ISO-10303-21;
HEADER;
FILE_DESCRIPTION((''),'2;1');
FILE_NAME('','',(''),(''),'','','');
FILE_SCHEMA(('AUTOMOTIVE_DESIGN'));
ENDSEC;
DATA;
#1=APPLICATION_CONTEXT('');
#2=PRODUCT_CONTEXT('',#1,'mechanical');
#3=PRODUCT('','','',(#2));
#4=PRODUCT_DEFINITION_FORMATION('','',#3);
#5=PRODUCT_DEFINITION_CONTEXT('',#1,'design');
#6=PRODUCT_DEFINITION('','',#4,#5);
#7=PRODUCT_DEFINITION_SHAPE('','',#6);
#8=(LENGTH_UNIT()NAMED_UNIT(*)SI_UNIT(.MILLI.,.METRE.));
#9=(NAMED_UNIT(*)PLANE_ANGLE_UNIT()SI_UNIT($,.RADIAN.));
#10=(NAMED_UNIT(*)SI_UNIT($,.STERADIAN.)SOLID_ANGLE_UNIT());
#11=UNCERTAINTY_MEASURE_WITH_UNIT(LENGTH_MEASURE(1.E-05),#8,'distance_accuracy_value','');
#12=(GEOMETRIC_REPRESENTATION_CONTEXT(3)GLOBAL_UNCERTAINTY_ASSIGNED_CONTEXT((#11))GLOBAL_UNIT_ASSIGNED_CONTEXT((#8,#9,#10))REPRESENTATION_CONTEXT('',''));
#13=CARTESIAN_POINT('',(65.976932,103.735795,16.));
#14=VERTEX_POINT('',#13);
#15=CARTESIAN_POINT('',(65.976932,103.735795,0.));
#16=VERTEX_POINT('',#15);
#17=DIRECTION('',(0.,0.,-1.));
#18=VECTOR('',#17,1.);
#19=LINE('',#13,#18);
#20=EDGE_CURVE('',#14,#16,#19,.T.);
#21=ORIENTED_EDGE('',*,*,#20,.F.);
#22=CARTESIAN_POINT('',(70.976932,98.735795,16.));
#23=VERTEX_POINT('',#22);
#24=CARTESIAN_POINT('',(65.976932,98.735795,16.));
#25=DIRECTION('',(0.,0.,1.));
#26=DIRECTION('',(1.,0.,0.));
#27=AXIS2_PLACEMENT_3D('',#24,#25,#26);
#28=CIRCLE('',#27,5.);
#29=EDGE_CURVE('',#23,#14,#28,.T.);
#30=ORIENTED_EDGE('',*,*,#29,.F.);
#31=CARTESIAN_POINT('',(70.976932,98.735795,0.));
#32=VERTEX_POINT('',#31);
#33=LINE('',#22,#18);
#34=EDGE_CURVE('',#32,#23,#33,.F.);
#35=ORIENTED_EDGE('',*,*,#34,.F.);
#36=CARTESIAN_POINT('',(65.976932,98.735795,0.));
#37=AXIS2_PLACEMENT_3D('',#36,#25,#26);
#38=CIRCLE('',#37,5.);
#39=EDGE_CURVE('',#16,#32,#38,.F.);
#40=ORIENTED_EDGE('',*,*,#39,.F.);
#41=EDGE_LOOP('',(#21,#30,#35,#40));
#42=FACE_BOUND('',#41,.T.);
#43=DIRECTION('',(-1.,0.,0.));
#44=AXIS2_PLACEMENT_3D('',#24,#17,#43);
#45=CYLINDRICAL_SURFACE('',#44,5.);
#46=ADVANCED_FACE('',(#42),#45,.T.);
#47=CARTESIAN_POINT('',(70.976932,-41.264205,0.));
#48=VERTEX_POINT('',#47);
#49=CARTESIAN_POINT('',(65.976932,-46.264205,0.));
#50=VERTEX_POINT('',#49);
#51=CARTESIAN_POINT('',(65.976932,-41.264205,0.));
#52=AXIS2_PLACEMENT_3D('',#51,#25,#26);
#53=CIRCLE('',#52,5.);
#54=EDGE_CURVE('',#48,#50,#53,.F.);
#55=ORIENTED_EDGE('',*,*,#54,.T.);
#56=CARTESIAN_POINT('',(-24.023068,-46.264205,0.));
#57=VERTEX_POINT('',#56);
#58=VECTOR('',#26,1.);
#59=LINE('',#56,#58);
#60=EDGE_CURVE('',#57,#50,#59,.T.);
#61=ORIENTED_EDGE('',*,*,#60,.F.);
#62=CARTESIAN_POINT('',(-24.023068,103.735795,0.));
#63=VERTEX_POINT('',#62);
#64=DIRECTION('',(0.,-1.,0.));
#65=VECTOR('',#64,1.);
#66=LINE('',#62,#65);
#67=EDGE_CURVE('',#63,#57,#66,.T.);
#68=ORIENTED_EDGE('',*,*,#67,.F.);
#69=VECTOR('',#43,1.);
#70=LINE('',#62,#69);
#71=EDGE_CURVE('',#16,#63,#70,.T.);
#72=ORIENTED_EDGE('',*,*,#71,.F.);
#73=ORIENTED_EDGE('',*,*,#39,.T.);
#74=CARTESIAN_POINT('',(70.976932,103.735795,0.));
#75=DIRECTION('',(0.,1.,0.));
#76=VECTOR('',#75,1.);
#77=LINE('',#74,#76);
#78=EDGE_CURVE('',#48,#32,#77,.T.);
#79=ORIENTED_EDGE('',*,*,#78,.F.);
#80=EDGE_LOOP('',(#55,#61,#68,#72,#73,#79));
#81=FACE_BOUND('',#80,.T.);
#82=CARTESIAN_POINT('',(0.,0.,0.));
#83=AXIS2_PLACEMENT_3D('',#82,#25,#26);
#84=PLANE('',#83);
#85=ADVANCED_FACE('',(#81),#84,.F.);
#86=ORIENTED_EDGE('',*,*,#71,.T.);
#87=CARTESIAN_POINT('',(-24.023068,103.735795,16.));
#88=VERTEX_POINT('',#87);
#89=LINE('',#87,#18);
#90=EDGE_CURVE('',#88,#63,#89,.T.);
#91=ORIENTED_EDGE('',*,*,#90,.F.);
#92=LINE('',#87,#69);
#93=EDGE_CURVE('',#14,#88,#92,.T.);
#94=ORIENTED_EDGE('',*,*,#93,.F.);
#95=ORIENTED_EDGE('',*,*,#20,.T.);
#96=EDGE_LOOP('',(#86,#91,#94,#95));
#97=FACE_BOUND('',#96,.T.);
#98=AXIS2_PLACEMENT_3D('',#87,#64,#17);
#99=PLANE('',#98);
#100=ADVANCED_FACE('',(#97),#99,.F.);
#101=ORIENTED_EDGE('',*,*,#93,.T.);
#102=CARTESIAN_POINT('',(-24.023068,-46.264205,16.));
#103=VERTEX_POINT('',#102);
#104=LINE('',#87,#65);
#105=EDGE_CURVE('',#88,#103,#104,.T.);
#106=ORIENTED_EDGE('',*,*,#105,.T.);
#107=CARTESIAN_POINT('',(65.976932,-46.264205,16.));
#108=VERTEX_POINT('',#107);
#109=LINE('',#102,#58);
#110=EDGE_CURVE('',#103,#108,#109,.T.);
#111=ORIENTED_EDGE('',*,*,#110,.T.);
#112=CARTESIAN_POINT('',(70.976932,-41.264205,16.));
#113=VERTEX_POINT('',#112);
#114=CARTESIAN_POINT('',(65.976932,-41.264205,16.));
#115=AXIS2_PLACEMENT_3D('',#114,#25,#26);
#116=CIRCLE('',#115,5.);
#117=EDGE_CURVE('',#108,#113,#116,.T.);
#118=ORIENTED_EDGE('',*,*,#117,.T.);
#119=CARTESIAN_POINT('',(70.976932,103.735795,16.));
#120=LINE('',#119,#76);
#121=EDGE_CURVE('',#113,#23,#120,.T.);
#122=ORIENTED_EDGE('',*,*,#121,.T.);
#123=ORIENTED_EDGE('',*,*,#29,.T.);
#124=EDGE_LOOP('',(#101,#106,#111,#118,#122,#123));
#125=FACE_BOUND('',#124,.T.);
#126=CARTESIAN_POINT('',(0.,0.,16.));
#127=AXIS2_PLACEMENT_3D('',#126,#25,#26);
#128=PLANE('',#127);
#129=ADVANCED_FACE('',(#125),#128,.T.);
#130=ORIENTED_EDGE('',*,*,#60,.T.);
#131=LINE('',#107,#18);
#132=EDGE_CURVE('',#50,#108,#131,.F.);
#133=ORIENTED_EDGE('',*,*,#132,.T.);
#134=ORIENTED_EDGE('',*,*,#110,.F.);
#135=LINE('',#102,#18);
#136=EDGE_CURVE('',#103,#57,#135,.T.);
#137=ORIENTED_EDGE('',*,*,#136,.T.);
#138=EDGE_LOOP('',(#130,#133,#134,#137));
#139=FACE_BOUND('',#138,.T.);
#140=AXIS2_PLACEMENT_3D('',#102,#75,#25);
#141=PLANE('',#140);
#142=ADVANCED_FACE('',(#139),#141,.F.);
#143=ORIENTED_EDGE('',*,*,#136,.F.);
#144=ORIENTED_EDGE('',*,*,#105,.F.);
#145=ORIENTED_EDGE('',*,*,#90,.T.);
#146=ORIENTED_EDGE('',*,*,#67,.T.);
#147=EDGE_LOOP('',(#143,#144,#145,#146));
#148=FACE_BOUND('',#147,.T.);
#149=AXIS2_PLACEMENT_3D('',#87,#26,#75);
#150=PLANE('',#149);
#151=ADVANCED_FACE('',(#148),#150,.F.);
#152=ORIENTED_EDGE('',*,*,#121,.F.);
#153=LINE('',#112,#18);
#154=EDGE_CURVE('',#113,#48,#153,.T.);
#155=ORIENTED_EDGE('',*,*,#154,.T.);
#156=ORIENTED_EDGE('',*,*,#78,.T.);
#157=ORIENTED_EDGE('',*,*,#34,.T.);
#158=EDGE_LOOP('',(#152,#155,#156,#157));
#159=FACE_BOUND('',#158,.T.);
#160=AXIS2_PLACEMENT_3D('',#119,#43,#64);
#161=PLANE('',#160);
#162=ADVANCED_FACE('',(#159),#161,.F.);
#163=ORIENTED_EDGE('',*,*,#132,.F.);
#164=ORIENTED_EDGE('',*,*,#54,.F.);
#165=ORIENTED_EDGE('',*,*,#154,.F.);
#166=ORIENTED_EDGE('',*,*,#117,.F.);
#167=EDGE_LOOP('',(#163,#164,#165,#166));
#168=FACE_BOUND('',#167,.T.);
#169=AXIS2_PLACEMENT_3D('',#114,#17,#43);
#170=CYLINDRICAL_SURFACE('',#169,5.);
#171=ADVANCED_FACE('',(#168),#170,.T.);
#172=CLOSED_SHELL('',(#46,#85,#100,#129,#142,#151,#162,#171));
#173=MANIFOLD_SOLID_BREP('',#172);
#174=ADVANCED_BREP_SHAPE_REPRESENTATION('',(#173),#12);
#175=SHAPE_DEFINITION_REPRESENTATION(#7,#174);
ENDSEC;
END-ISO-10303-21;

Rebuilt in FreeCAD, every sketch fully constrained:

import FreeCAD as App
import Part
import Sketcher

V = App.Vector


def edges_at(feature, points):
    """Names of the edges that pass closest to the given points."""
    edges = feature.Shape.Edges
    near = lambda p: min(range(len(edges)), key=lambda i: edges[i].distToShape(Part.Vertex(*p))[0])
    return sorted({f"Edge{near(p) + 1}" for p in points})


def add_polygon(sketch, points):
    """Adds a closed chain of lines whose ends are joined by coincident constraints."""
    first, n = sketch.GeometryCount, len(points)
    for a, b in zip(points, points[1:] + points[:1]):
        sketch.addGeometry(Part.LineSegment(App.Vector(*a, 0), App.Vector(*b, 0)), False)
    for i in range(n):
        sketch.addConstraint(Sketcher.Constraint("Coincident", first + i, 2, first + (i + 1) % n, 1))

doc = App.newDocument("Part")
body = doc.addObject("PartDesign::Body", "Body")

# Sketch on XY plane
sketch1 = body.newObject("Sketcher::SketchObject", "Sketch")
sketch1.AttachmentSupport = (doc.getObject("XY_Plane"), [""])
sketch1.MapMode = "FlatFace"
add_polygon(sketch1, [(-24, 104), (-24, -46), (71, -46), (71, 104)])  # lines 0-3
sketch1.addConstraint(Sketcher.Constraint("Vertical", 0))
sketch1.addConstraint(Sketcher.Constraint("Horizontal", 1))
sketch1.addConstraint(Sketcher.Constraint("Vertical", 2))
sketch1.addConstraint(Sketcher.Constraint("Horizontal", 3))
sketch1.addConstraint(Sketcher.Constraint("DistanceX", 1, 1, 1, 2, 95.0))
sketch1.addConstraint(Sketcher.Constraint("DistanceY", 0, 2, 0, 1, 150.0))
sketch1.addConstraint(Sketcher.Constraint("DistanceX", 0, 2, -1, 1, 24.023068))
sketch1.addConstraint(Sketcher.Constraint("DistanceY", 0, 2, -1, 1, 46.264205))
pad1 = body.newObject("PartDesign::Pad", "Pad")
pad1.Profile = sketch1
pad1.Length = 16
doc.recompute()

fillet = body.newObject("PartDesign::Fillet", "Fillet")
fillet.Base = (pad1, edges_at(pad1, [(70.977, 103.736, 8), (70.977, -46.264, 8)]))
fillet.Radius = 5

doc.recompute()
